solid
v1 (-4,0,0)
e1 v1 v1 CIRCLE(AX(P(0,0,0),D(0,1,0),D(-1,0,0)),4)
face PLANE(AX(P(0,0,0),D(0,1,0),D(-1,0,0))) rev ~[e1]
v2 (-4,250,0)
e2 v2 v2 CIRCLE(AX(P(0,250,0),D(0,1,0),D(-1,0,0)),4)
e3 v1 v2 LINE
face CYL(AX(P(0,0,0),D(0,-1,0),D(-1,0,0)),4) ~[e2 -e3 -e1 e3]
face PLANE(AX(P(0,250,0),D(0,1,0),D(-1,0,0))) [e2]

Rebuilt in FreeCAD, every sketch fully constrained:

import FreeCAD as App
import Part
import Sketcher
from FreeCAD import Vector
Q = App.Units.Quantity

doc = App.newDocument("Part")
body = doc.addObject("PartDesign::Body", "Body")

sketch1 = body.newObject("Sketcher::SketchObject", "Sketch")
sketch1.AttachmentSupport = (doc.getObject("XZ_Plane"), [""])
sketch1.MapMode = "FlatFace"
sketch1.addGeometry(Part.Circle(Vector(0, 0, 0), Vector(0, 0, 1), 4), False)
sketch1.addConstraint([
    Sketcher.Constraint("Coincident", 0, 3, -1, 1),
    Sketcher.Constraint("Diameter", 0, Q("8 mm")),
])
pad1 = body.newObject("PartDesign::Pad", "Pad")
pad1.Profile = sketch1
pad1.Length = 250
pad1.Reversed = True

doc.recompute()
